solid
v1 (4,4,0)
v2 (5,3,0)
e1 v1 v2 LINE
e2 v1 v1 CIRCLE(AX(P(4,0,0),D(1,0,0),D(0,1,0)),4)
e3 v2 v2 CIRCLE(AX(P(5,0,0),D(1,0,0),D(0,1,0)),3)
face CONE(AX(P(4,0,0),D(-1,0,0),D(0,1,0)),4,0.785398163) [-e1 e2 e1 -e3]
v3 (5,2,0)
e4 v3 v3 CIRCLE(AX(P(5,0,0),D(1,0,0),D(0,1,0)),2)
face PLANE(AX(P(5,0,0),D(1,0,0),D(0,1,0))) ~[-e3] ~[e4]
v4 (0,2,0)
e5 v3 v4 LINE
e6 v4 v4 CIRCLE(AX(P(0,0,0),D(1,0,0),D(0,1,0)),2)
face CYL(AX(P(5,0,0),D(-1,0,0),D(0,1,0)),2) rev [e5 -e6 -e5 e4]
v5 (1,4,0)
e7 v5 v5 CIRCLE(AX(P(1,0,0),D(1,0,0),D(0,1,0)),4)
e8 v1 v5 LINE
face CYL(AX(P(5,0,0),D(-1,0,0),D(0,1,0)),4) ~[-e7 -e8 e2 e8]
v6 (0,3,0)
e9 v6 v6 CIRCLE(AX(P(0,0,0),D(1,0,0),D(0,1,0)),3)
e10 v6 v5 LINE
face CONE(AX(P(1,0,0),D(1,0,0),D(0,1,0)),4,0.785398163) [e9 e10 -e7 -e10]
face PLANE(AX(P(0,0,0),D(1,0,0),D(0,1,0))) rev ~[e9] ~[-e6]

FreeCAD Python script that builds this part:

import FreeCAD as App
import Part
import Sketcher
Q = App.Units.Quantity


def edges_at(feature, points):
    """Names of the edges that pass closest to the given points."""
    edges = feature.Shape.Edges
    near = lambda p: min(range(len(edges)), key=lambda i: edges[i].distToShape(Part.Vertex(*p))[0])
    return sorted({f"Edge{near(p) + 1}" for p in points})

doc = App.newDocument("Part")
body = doc.addObject("PartDesign::Body", "Body")

# Sketch on XY plane
sketch1 = doc.addObject("Sketcher::SketchObject", "Sketch")
body.addObject(sketch1)
sketch1.AttachmentSupport = (doc.XY_Plane, [""])
sketch1.MapMode = "FlatFace"
sketch1.addGeometry(Part.LineSegment(App.Vector(0, 4, 0), App.Vector(0, 2, 0)), False)
sketch1.addGeometry(Part.LineSegment(App.Vector(0, 2, 0), App.Vector(5, 2, 0)), False)
sketch1.addGeometry(Part.LineSegment(App.Vector(5, 2, 0), App.Vector(5, 4, 0)), False)
sketch1.addGeometry(Part.LineSegment(App.Vector(5, 4, 0), App.Vector(0, 4, 0)), False)
sketch1.addConstraint(Sketcher.Constraint("Coincident", 0, 2, 1, 1))
sketch1.addConstraint(Sketcher.Constraint("Coincident", 1, 2, 2, 1))
sketch1.addConstraint(Sketcher.Constraint("Coincident", 2, 2, 3, 1))
sketch1.addConstraint(Sketcher.Constraint("Coincident", 3, 2, 0, 1))
sketch1.addConstraint(Sketcher.Constraint("Vertical", 0))
sketch1.addConstraint(Sketcher.Constraint("Horizontal", 1))
sketch1.addConstraint(Sketcher.Constraint("Vertical", 2))
sketch1.addConstraint(Sketcher.Constraint("Horizontal", 3))
sketch1.addConstraint(Sketcher.Constraint("PointOnObject", 0, 2, -2))
sketch1.addConstraint(Sketcher.Constraint("DistanceX", 1, 1, 1, 2, Q("5 mm")))
sketch1.addConstraint(Sketcher.Constraint("DistanceY", 0, 2, 0, 1, Q("2 mm")))
sketch1.addConstraint(Sketcher.Constraint("DistanceY", -1, 1, 0, 2, Q("2 mm")))
revolution = doc.addObject("PartDesign::Revolution", "Revolution")
body.addObject(revolution)
revolution.Profile = sketch1
revolution.ReferenceAxis = (sketch1, ["H_Axis"])
revolution.Angle = 360
doc.recompute()

chamfer = doc.addObject("PartDesign::Chamfer", "Chamfer")
body.addObject(chamfer)
chamfer.Base = (revolution, edges_at(revolution, [(5, -4, 0), (0, -4, 0)]))
chamfer.Size = 1

doc.recompute()
